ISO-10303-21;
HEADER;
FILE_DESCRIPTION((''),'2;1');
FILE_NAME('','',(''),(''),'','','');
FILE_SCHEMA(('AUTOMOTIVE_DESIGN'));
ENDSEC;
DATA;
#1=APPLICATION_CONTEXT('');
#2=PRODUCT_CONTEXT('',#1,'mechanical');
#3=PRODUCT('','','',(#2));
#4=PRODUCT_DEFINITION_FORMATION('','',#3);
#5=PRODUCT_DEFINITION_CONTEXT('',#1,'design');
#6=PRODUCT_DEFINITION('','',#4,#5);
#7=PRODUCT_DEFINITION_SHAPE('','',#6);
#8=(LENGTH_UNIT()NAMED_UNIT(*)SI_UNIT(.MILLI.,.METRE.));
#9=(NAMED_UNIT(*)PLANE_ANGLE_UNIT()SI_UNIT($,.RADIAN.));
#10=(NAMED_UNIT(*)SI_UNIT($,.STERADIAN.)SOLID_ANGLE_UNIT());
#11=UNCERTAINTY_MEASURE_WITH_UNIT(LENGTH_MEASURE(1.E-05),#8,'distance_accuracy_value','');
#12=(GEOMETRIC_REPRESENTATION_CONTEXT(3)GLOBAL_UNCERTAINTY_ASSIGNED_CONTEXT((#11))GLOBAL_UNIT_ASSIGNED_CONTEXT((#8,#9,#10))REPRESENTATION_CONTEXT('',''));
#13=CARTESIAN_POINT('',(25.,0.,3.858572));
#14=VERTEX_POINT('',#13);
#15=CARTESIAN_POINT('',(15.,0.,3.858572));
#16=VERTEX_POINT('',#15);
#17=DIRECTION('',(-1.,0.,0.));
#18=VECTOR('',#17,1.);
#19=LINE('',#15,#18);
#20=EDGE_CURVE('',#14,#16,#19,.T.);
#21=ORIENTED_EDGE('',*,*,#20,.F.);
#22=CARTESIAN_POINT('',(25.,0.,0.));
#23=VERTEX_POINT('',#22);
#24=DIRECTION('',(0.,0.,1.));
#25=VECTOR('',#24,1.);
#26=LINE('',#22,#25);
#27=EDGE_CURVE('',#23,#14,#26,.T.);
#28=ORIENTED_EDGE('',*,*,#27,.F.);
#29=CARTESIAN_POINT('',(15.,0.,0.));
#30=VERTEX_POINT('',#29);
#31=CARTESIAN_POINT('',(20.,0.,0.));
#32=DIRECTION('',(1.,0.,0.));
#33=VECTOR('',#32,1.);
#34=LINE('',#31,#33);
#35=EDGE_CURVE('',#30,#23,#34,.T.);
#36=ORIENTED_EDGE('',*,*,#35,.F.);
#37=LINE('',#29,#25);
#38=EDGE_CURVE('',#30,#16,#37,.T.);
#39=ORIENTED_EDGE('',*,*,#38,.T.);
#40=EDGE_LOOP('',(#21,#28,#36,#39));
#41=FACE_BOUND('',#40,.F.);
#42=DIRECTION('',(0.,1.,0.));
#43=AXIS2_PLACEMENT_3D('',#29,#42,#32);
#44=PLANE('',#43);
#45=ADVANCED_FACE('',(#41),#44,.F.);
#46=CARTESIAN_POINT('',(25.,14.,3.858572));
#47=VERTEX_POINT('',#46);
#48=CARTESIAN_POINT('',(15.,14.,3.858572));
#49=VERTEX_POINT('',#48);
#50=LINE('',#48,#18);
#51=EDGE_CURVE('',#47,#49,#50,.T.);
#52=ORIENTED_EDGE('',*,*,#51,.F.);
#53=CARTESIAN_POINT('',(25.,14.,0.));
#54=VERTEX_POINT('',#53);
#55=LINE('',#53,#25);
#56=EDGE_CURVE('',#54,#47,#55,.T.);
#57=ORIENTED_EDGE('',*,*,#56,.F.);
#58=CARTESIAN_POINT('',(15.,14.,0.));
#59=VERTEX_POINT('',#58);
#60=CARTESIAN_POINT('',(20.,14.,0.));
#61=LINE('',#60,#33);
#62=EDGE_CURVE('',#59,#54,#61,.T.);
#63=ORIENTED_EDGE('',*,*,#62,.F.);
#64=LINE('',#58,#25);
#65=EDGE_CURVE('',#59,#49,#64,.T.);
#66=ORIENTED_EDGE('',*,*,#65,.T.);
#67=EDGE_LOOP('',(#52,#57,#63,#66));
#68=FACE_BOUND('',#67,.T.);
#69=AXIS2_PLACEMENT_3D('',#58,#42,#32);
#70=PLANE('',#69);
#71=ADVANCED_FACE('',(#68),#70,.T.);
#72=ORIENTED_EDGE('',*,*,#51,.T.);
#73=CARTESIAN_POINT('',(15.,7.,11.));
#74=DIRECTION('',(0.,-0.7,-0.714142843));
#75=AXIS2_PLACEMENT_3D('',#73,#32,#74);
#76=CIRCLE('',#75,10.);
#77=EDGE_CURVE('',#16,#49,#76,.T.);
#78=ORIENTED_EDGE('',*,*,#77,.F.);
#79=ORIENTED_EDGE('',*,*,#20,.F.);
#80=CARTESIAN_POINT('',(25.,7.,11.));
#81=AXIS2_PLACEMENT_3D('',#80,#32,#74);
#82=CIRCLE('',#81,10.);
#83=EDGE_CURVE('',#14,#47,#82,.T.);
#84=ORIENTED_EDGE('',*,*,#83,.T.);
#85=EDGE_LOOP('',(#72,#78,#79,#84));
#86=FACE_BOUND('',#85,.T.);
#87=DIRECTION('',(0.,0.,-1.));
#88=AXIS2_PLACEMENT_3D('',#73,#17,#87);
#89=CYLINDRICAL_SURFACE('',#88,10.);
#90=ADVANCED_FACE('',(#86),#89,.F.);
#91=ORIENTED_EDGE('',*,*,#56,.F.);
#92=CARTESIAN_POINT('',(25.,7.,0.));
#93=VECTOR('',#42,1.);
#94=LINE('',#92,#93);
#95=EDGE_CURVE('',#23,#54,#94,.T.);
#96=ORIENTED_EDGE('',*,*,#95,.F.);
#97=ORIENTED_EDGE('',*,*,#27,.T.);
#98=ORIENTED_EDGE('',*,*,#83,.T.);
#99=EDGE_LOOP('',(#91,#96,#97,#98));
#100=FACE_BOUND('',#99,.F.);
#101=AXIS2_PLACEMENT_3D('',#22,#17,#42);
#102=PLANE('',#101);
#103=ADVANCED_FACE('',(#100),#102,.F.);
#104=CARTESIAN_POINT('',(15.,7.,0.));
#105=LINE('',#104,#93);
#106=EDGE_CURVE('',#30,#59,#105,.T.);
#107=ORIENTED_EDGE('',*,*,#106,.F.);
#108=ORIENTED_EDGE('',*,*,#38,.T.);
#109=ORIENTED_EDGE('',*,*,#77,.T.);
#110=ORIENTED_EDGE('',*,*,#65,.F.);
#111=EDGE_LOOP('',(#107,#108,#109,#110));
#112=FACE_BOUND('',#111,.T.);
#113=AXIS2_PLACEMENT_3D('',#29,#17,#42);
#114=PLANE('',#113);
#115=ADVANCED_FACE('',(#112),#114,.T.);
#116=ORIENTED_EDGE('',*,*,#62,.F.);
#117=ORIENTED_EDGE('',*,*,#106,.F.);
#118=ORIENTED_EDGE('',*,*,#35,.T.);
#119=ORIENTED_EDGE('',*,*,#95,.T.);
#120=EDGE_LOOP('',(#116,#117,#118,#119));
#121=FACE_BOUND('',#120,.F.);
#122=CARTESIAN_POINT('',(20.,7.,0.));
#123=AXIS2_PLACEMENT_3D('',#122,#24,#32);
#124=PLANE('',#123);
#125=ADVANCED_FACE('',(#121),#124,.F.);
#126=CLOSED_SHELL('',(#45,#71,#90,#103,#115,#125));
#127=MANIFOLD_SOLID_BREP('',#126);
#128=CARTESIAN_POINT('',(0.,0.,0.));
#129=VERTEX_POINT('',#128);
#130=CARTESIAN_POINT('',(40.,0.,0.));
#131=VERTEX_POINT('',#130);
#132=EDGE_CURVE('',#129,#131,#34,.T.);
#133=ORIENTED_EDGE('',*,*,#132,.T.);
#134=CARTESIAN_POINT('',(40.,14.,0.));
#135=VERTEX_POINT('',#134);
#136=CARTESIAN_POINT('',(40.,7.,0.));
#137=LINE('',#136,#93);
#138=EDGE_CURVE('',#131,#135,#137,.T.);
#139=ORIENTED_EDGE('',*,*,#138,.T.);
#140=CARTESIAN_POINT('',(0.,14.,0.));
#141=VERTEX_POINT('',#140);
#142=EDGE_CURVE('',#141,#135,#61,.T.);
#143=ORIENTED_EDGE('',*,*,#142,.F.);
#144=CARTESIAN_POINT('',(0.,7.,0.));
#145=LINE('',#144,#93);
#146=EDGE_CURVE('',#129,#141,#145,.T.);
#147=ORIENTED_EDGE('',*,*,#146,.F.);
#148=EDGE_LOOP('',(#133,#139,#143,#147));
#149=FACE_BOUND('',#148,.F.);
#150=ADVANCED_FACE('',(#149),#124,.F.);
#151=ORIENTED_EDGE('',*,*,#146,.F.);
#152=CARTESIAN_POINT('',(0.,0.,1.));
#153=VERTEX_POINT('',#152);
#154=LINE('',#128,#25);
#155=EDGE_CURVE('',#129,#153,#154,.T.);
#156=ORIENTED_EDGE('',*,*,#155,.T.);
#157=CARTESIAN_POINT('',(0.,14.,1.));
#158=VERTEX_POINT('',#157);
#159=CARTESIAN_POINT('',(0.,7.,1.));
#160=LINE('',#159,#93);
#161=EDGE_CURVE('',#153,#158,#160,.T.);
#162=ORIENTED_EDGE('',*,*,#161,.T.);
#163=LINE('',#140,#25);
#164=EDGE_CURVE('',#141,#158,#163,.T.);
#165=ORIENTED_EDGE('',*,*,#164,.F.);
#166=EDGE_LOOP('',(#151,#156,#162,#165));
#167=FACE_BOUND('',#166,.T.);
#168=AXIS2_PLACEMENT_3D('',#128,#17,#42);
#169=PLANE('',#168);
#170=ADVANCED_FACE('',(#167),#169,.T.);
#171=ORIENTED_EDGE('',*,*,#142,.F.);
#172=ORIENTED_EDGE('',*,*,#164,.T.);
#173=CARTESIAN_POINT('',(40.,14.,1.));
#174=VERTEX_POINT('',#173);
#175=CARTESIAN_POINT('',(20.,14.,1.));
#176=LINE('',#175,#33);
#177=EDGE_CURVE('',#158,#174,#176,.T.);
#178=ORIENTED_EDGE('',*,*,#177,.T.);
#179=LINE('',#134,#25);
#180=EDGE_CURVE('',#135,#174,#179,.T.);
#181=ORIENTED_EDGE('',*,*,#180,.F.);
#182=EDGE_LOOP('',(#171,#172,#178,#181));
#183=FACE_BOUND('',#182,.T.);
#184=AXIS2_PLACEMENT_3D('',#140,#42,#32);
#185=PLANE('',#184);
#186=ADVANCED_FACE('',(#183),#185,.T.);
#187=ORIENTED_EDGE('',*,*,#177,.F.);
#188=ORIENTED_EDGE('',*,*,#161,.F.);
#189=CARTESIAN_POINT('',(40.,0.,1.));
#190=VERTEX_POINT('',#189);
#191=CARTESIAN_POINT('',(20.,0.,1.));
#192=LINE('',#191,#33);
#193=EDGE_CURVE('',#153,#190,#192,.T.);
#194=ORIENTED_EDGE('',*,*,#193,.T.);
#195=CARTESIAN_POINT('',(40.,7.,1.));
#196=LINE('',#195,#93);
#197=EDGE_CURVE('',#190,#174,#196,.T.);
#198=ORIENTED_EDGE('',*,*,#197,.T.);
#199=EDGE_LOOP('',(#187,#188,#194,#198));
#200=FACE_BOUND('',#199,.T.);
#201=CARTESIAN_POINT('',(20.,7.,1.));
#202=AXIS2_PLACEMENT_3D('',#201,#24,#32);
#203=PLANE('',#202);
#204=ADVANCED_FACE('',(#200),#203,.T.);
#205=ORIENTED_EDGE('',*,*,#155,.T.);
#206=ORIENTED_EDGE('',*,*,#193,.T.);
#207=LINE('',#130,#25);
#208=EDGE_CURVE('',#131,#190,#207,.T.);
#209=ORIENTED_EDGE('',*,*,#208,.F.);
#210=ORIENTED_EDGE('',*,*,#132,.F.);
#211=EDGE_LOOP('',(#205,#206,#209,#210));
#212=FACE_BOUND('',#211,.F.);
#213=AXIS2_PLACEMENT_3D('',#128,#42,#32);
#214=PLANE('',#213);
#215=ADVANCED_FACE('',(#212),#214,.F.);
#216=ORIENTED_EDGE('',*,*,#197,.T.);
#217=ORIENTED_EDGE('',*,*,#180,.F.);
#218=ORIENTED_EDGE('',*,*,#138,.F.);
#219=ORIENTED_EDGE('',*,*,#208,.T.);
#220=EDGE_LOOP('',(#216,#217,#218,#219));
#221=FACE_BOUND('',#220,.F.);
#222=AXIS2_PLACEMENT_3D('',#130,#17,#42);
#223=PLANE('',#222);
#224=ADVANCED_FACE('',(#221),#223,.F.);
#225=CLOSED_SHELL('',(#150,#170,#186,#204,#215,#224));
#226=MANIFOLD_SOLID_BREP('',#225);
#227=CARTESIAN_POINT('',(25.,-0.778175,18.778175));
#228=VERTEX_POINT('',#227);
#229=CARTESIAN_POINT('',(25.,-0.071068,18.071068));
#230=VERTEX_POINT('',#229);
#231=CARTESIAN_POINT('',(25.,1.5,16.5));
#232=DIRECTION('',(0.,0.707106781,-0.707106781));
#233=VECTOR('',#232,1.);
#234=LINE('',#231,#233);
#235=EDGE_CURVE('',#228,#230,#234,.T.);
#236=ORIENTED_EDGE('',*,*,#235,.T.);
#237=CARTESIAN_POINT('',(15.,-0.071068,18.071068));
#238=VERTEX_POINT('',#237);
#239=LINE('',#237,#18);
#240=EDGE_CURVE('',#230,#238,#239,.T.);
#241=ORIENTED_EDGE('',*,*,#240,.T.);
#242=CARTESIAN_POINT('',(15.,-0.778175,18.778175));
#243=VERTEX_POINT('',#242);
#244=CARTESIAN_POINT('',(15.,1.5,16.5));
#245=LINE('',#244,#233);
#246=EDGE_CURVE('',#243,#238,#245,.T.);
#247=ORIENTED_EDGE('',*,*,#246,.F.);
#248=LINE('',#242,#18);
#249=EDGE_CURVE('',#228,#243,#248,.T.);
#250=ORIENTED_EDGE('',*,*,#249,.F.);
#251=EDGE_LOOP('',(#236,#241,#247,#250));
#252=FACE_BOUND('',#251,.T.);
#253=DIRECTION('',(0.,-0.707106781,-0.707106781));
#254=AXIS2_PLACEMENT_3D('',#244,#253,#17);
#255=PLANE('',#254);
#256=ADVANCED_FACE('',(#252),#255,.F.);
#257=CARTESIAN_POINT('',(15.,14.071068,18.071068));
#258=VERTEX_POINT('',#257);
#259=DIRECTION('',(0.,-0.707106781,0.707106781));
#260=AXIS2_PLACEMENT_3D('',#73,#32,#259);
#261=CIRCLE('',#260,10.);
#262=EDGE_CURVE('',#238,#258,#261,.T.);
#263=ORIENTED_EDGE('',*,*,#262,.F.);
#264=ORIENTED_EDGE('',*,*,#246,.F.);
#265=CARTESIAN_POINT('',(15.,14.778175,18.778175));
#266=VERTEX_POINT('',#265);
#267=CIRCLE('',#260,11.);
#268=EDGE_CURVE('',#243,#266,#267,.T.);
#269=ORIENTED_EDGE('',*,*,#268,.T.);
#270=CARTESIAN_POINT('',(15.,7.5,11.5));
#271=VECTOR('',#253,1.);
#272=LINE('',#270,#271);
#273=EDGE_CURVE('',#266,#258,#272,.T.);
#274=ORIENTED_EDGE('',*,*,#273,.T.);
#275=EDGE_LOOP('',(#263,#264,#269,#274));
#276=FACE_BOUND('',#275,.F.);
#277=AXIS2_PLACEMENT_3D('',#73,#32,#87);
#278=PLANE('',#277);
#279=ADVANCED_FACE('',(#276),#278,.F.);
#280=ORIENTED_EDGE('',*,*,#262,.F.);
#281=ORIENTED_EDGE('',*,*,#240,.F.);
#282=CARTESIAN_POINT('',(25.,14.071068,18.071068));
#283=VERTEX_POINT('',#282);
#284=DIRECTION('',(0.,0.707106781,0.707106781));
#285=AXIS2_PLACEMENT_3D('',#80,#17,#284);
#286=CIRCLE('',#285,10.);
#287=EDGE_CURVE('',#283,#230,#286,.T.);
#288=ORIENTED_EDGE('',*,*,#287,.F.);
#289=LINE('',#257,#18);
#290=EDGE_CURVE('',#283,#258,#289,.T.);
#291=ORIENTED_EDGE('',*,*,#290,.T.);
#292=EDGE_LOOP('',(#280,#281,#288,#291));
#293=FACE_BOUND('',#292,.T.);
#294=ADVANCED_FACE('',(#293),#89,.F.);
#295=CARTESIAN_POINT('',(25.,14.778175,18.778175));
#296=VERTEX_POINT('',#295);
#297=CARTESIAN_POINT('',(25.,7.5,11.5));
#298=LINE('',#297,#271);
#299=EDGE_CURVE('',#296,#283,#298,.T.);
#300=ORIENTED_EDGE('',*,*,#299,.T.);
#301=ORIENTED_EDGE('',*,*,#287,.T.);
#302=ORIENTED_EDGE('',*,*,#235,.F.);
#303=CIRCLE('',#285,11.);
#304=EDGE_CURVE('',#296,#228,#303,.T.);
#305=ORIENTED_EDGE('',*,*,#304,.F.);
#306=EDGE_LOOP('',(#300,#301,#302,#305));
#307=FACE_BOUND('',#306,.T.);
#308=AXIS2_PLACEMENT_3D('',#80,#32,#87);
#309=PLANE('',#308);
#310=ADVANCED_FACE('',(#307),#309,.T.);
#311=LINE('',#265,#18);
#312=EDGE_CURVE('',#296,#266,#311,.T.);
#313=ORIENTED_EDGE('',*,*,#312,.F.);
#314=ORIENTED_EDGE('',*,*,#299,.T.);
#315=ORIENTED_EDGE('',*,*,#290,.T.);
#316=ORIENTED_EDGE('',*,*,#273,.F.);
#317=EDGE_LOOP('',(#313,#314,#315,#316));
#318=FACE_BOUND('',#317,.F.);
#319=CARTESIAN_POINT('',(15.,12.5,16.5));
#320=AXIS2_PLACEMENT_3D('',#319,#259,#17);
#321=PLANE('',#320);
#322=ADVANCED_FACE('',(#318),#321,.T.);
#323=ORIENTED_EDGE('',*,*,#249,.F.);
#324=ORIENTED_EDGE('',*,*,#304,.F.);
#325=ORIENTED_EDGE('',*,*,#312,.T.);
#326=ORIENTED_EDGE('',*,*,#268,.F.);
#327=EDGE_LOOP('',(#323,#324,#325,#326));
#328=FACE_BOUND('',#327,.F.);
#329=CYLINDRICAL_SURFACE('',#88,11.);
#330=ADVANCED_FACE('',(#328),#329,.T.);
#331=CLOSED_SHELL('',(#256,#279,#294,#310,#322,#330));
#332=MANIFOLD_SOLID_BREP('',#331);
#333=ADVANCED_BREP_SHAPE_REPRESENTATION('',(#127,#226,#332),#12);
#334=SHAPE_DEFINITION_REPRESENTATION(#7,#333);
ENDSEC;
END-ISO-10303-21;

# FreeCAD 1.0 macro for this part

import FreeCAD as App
import Part
import Sketcher


def edges_at(feature, points):
    """Names of the edges that pass closest to the given points."""
    edges = feature.Shape.Edges
    near = lambda p: min(range(len(edges)), key=lambda i: edges[i].distToShape(Part.Vertex(*p))[0])
    return sorted({f"Edge{near(p) + 1}" for p in points})

doc = App.newDocument("Part")
params = doc.addObject("Spreadsheet::Sheet", "Params")
for row, (alias, value) in enumerate([
    ("sketch1_width", "40 mm"),
    ("sketch1_height", "14 mm"),
    ("pad1_length", "1 mm"),
    ("sketch2_diameter", "20 mm"),
    ("pad2_length", "10 mm"),
    ("sketch3_width", "10 mm"),
    ("sketch3_height", "14 mm"),
    ("pad3_length", "4 mm"),
    ("sketch4_width", "10 mm"),
    ("sketch4_height", "20 mm"),
    ("pad4_length", "10 mm"),
    ("chamfer_size", "9 mm"),
    ("sketch5_diameter", "22 mm"),
    ("pad5_length", "10 mm"),
], start=1):
    params.set(f"A{row}", alias)
    params.set(f"B{row}", "=" + value)
    params.setAlias(f"B{row}", alias)

body = doc.addObject("PartDesign::Body", "Body")

sketch1 = body.newObject("Sketcher::SketchObject", "Sketch")
sketch1.AttachmentSupport = (doc.getObject("XY_Plane"), [""])
sketch1.MapMode = "FlatFace"
sketch1.addGeometry(Part.LineSegment(App.Vector(0, 14, 0), App.Vector(0, 0, 0)), False)
sketch1.addGeometry(Part.LineSegment(App.Vector(0, 0, 0), App.Vector(40, 0, 0)), False)
sketch1.addGeometry(Part.LineSegment(App.Vector(40, 0, 0), App.Vector(40, 14, 0)), False)
sketch1.addGeometry(Part.LineSegment(App.Vector(40, 14, 0), App.Vector(0, 14, 0)), False)
sketch1.addConstraint(Sketcher.Constraint("Coincident", 0, 2, 1, 1))
sketch1.addConstraint(Sketcher.Constraint("Coincident", 1, 2, 2, 1))
sketch1.addConstraint(Sketcher.Constraint("Coincident", 2, 2, 3, 1))
sketch1.addConstraint(Sketcher.Constraint("Coincident", 3, 2, 0, 1))
sketch1.addConstraint(Sketcher.Constraint("Vertical", 0))
sketch1.addConstraint(Sketcher.Constraint("Horizontal", 1))
sketch1.addConstraint(Sketcher.Constraint("Vertical", 2))
sketch1.addConstraint(Sketcher.Constraint("Horizontal", 3))
sketch1.addConstraint(Sketcher.Constraint("Coincident", 0, 2, -1, 1))
sketch1.addConstraint(Sketcher.Constraint("DistanceX", 1, 1, 1, 2, 40.0))
sketch1.addConstraint(Sketcher.Constraint("DistanceY", 0, 2, 0, 1, 14.0))
sketch1.setExpression("Constraints[9]", "Params.sketch1_width")
sketch1.setExpression("Constraints[10]", "Params.sketch1_height")
pad1 = body.newObject("PartDesign::Pad", "Pad")
pad1.Profile = sketch1
pad1.setExpression("Length", "Params.pad1_length")
body2 = doc.addObject("PartDesign::Body", "Body001")

sketch2 = body2.newObject("Sketcher::SketchObject", "Sketch001")
sketch2.AttachmentSupport = (doc.getObject("XY_Plane001"), [""])
sketch2.MapMode = "FlatFace"
sketch2.addGeometry(Part.Circle(App.Vector(0, 0, 0), App.Vector(0, 0, 1), 10), False)
sketch2.addConstraint(Sketcher.Constraint("Coincident", 0, 3, -1, 1))
sketch2.addConstraint(Sketcher.Constraint("Diameter", 0, 20.0))
sketch2.setExpression("Constraints[1]", "Params.sketch2_diameter")
pad2 = body2.newObject("PartDesign::Pad", "Pad001")
pad2.Profile = sketch2
pad2.setExpression("Length", "Params.pad2_length")
body3 = doc.addObject("PartDesign::Body", "Body002")
doc.recompute()

body2.Placement = App.Placement(App.Vector(0, 0, 0), App.Rotation(App.Vector(0, 1, 0), 90))
boolean = body3.newObject("PartDesign::Boolean", "Boolean")
boolean.Type = "Fuse"
boolean.addObjects([body2])
body4 = doc.addObject("PartDesign::Body", "Body003")
doc.recompute()

body3.Placement = App.Placement(App.Vector(15, 7, 11), App.Rotation(App.Vector(0, 0, 1), 0))
boolean2 = body4.newObject("PartDesign::Boolean", "Boolean001")
boolean2.Type = "Fuse"
boolean2.addObjects([body3])
body5 = doc.addObject("PartDesign::Body", "Body004")

sketch3 = body5.newObject("Sketcher::SketchObject", "Sketch002")
sketch3.AttachmentSupport = (doc.getObject("XY_Plane004"), [""])
sketch3.MapMode = "FlatFace"
sketch3.addGeometry(Part.LineSegment(App.Vector(15, 14, 0), App.Vector(15, 0, 0)), False)
sketch3.addGeometry(Part.LineSegment(App.Vector(15, 0, 0), App.Vector(25, 0, 0)), False)
sketch3.addGeometry(Part.LineSegment(App.Vector(25, 0, 0), App.Vector(25, 14, 0)), False)
sketch3.addGeometry(Part.LineSegment(App.Vector(25, 14, 0), App.Vector(15, 14, 0)), False)
sketch3.addConstraint(Sketcher.Constraint("Coincident", 0, 2, 1, 1))
sketch3.addConstraint(Sketcher.Constraint("Coincident", 1, 2, 2, 1))
sketch3.addConstraint(Sketcher.Constraint("Coincident", 2, 2, 3, 1))
sketch3.addConstraint(Sketcher.Constraint("Coincident", 3, 2, 0, 1))
sketch3.addConstraint(Sketcher.Constraint("Vertical", 0))
sketch3.addConstraint(Sketcher.Constraint("Horizontal", 1))
sketch3.addConstraint(Sketcher.Constraint("Vertical", 2))
sketch3.addConstraint(Sketcher.Constraint("Horizontal", 3))
sketch3.addConstraint(Sketcher.Constraint("PointOnObject", 0, 2, -1))
sketch3.addConstraint(Sketcher.Constraint("DistanceX", 1, 1, 1, 2, 10.0))
sketch3.addConstraint(Sketcher.Constraint("DistanceY", 0, 2, 0, 1, 14.0))
sketch3.addConstraint(Sketcher.Constraint("DistanceX", -1, 1, 0, 2, 15.0))
sketch3.setExpression("Constraints[9]", "Params.sketch3_width")
sketch3.setExpression("Constraints[10]", "Params.sketch3_height")
pad3 = body5.newObject("PartDesign::Pad", "Pad002")
pad3.Profile = sketch3
pad3.setExpression("Length", "Params.pad3_length")
doc.recompute()

body6 = doc.addObject("PartDesign::Body", "Body005")
body6.BaseFeature = body4
boolean3 = body5.newObject("PartDesign::Boolean", "Boolean002")
boolean3.Type = "Cut"
boolean3.addObjects([body6])
doc.recompute()
body7 = doc.addObject("PartDesign::Body", "Body006")

sketch4 = body7.newObject("Sketcher::SketchObject", "Sketch003")
sketch4.AttachmentSupport = (doc.getObject("XY_Plane006"), [""])
sketch4.MapMode = "FlatFace"
sketch4.AttachmentOffset = App.Placement(App.Vector(0, 0, 20), App.Rotation())
sketch4.addGeometry(Part.LineSegment(App.Vector(15, 17, 0), App.Vector(15, -3, 0)), False)
sketch4.addGeometry(Part.LineSegment(App.Vector(15, -3, 0), App.Vector(25, -3, 0)), False)
sketch4.addGeometry(Part.LineSegment(App.Vector(25, -3, 0), App.Vector(25, 17, 0)), False)
sketch4.addGeometry(Part.LineSegment(App.Vector(25, 17, 0), App.Vector(15, 17, 0)), False)
sketch4.addConstraint(Sketcher.Constraint("Coincident", 0, 2, 1, 1))
sketch4.addConstraint(Sketcher.Constraint("Coincident", 1, 2, 2, 1))
sketch4.addConstraint(Sketcher.Constraint("Coincident", 2, 2, 3, 1))
sketch4.addConstraint(Sketcher.Constraint("Coincident", 3, 2, 0, 1))
sketch4.addConstraint(Sketcher.Constraint("Vertical", 0))
sketch4.addConstraint(Sketcher.Constraint("Horizontal", 1))
sketch4.addConstraint(Sketcher.Constraint("Vertical", 2))
sketch4.addConstraint(Sketcher.Constraint("Horizontal", 3))
sketch4.addConstraint(Sketcher.Constraint("DistanceX", 1, 1, 1, 2, 10.0))
sketch4.addConstraint(Sketcher.Constraint("DistanceY", 0, 2, 0, 1, 20.0))
sketch4.addConstraint(Sketcher.Constraint("DistanceX", -1, 1, 0, 2, 15.0))
sketch4.addConstraint(Sketcher.Constraint("DistanceY", 0, 2, -1, 1, 3.0))
sketch4.setExpression("Constraints[8]", "Params.sketch4_width")
sketch4.setExpression("Constraints[9]", "Params.sketch4_height")
pad4 = body7.newObject("PartDesign::Pad", "Pad003")
pad4.Profile = sketch4
pad4.setExpression("Length", "Params.pad4_length")
doc.recompute()

chamfer = body7.newObject("PartDesign::Chamfer", "Chamfer")
chamfer.Base = (pad4, edges_at(pad4, [(20, -3, 20), (20, 17, 20)]))
chamfer.setExpression("Size", "Params.chamfer_size")
body8 = doc.addObject("PartDesign::Body", "Body007")
doc.recompute()

body7.Placement = App.Placement(App.Vector(0, 0, -8), App.Rotation(App.Vector(0, 0, 1), 0))
boolean4 = body8.newObject("PartDesign::Boolean", "Boolean003")
boolean4.Type = "Fuse"
boolean4.addObjects([body7])
body9 = doc.addObject("PartDesign::Body", "Body008")

sketch5 = body9.newObject("Sketcher::SketchObject", "Sketch004")
sketch5.AttachmentSupport = (doc.getObject("XY_Plane008"), [""])
sketch5.MapMode = "FlatFace"
sketch5.addGeometry(Part.Circle(App.Vector(0, 0, 0), App.Vector(0, 0, 1), 11), False)
sketch5.addConstraint(Sketcher.Constraint("Coincident", 0, 3, -1, 1))
sketch5.addConstraint(Sketcher.Constraint("Diameter", 0, 22.0))
sketch5.setExpression("Constraints[1]", "Params.sketch5_diameter")
pad5 = body9.newObject("PartDesign::Pad", "Pad004")
pad5.Profile = sketch5
pad5.setExpression("Length", "Params.pad5_length")
body10 = doc.addObject("PartDesign::Body", "Body009")
doc.recompute()

body9.Placement = App.Placement(App.Vector(0, 0, 0), App.Rotation(App.Vector(0, 1, 0), 90))
boolean5 = body10.newObject("PartDesign::Boolean", "Boolean004")
boolean5.Type = "Fuse"
boolean5.addObjects([body9])
body11 = doc.addObject("PartDesign::Body", "Body010")
doc.recompute()

body10.Placement = App.Placement(App.Vector(15, 7, 11), App.Rotation(App.Vector(0, 0, 1), 0))
boolean6 = body11.newObject("PartDesign::Boolean", "Boolean005")
boolean6.Type = "Fuse"
boolean6.addObjects([body10])
doc.recompute()

boolean7 = body11.newObject("PartDesign::Boolean", "Boolean006")
boolean7.Type = "Cut"
boolean7.addObjects([body4])
doc.recompute()

boolean8 = body11.newObject("PartDesign::Boolean", "Boolean007")
boolean8.Type = "Cut"
boolean8.addObjects([body8])

doc.recompute()
